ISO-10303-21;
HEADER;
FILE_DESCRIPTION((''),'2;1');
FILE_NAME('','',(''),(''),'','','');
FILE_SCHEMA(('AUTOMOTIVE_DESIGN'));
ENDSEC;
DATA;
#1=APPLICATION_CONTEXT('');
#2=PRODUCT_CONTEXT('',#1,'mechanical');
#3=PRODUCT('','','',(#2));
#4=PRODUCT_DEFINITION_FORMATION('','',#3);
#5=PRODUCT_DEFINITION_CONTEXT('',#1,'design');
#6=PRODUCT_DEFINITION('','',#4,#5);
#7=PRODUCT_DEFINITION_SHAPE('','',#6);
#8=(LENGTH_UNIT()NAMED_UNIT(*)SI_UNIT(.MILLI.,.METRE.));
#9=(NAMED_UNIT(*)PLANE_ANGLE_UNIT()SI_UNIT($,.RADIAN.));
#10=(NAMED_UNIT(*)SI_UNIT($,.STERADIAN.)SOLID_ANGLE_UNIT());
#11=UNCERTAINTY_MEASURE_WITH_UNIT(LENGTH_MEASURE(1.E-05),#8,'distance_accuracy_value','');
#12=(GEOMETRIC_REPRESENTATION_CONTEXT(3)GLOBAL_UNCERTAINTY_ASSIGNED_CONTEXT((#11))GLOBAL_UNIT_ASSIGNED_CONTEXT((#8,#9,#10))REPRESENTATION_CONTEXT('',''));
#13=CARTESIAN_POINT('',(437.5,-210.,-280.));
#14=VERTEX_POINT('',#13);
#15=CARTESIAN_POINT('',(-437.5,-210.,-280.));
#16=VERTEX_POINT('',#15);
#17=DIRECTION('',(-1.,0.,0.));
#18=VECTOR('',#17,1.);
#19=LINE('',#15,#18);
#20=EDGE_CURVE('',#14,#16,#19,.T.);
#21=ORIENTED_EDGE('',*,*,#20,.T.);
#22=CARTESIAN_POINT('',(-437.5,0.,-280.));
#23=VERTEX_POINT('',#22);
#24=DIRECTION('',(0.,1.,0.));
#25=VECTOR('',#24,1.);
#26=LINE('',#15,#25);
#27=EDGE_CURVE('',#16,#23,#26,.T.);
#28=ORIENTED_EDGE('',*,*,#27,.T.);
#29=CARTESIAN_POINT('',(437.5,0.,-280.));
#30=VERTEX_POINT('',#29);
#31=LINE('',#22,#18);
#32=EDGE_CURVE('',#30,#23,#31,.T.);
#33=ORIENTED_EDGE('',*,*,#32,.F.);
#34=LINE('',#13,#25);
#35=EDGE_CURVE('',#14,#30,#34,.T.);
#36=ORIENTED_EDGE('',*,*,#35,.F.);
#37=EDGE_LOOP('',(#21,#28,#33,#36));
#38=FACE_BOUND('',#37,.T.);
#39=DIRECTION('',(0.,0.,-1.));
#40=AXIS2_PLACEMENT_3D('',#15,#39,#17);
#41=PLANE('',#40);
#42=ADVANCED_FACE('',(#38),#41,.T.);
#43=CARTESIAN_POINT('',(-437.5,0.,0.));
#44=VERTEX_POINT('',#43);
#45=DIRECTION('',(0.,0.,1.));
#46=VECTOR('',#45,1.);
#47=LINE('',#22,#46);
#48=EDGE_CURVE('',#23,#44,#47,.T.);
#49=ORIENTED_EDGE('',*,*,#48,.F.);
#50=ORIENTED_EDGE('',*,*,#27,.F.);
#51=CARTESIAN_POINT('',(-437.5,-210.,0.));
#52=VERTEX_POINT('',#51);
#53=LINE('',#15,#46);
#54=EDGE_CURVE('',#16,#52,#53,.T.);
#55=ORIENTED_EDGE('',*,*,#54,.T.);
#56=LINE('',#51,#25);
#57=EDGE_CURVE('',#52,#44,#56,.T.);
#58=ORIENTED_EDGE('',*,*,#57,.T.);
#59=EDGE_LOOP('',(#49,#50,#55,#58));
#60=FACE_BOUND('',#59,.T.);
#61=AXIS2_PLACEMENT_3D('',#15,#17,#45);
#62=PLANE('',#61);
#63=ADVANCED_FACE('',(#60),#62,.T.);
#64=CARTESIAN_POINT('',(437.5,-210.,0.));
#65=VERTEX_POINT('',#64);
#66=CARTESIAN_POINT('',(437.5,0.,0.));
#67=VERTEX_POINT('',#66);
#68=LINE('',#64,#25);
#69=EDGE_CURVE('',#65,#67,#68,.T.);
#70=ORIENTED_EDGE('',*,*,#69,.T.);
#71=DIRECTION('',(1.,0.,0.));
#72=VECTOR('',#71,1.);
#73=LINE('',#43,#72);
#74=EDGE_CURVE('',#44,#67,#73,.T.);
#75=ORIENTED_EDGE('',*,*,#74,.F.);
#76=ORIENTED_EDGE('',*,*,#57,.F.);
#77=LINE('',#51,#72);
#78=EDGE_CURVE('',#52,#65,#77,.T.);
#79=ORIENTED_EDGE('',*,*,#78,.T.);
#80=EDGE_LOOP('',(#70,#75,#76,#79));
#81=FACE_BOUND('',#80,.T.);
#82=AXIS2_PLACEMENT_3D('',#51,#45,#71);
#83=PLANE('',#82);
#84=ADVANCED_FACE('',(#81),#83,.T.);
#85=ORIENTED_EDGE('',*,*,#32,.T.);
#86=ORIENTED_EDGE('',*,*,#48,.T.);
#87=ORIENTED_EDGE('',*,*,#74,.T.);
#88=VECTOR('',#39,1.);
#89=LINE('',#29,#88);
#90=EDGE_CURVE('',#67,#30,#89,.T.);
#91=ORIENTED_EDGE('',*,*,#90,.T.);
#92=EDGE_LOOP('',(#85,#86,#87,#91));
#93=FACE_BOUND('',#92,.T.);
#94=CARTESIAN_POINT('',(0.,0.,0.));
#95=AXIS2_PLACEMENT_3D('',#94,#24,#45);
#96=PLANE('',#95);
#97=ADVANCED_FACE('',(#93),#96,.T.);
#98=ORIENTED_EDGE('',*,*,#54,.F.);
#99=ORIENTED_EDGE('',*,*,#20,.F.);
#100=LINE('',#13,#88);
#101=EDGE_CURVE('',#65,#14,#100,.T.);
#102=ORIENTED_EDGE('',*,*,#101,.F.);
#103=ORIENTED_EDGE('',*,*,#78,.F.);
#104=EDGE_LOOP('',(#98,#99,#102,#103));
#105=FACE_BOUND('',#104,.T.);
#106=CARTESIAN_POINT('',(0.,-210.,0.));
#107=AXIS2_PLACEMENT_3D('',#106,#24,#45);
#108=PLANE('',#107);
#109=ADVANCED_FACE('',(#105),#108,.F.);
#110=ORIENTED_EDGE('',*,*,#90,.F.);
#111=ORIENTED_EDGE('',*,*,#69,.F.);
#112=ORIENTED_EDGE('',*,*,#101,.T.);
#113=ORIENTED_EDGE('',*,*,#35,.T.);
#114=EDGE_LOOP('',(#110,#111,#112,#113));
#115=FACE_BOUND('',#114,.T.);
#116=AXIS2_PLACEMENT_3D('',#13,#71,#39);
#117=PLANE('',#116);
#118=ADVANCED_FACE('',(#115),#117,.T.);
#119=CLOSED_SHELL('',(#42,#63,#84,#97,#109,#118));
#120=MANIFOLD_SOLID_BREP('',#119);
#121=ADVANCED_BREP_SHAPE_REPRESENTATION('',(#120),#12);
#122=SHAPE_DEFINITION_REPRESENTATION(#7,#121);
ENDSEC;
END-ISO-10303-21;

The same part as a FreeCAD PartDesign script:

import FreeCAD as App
import Part
import Sketcher
from FreeCAD import Vector


def add_polygon(sketch, points):
    """Adds a closed chain of lines whose ends are joined by coincident constraints."""
    first, n = sketch.GeometryCount, len(points)
    for a, b in zip(points, points[1:] + points[:1]):
        sketch.addGeometry(Part.LineSegment(App.Vector(*a, 0), App.Vector(*b, 0)), False)
    for i in range(n):
        sketch.addConstraint(Sketcher.Constraint("Coincident", first + i, 2, first + (i + 1) % n, 1))

doc = App.newDocument("Part")
body = doc.addObject("PartDesign::Body", "Body")

# Sketch on XZ plane
sketch1 = body.newObject("Sketcher::SketchObject", "Sketch")
sketch1.AttachmentSupport = (doc.getObject("XZ_Plane"), [""])
sketch1.MapMode = "FlatFace"
add_polygon(sketch1, [(-438, -280), (-438, 0), (438, 0), (438, -280)])  # lines 0-3
sketch1.addConstraint(Sketcher.Constraint("Vertical", 0))
sketch1.addConstraint(Sketcher.Constraint("Horizontal", 1))
sketch1.addConstraint(Sketcher.Constraint("Vertical", 2))
sketch1.addConstraint(Sketcher.Constraint("Horizontal", 3))
sketch1.addConstraint(Sketcher.Constraint("Symmetric", 0, 2, 1, 2, -1, 1))
sketch1.addConstraint(Sketcher.Constraint("DistanceX", 1, 1, 1, 2, 875.0))
sketch1.addConstraint(Sketcher.Constraint("DistanceY", 0, 1, 0, 2, 280.0))
pad1 = body.newObject("PartDesign::Pad", "Pad")
pad1.Profile = sketch1
pad1.Length = 210

doc.recompute()
